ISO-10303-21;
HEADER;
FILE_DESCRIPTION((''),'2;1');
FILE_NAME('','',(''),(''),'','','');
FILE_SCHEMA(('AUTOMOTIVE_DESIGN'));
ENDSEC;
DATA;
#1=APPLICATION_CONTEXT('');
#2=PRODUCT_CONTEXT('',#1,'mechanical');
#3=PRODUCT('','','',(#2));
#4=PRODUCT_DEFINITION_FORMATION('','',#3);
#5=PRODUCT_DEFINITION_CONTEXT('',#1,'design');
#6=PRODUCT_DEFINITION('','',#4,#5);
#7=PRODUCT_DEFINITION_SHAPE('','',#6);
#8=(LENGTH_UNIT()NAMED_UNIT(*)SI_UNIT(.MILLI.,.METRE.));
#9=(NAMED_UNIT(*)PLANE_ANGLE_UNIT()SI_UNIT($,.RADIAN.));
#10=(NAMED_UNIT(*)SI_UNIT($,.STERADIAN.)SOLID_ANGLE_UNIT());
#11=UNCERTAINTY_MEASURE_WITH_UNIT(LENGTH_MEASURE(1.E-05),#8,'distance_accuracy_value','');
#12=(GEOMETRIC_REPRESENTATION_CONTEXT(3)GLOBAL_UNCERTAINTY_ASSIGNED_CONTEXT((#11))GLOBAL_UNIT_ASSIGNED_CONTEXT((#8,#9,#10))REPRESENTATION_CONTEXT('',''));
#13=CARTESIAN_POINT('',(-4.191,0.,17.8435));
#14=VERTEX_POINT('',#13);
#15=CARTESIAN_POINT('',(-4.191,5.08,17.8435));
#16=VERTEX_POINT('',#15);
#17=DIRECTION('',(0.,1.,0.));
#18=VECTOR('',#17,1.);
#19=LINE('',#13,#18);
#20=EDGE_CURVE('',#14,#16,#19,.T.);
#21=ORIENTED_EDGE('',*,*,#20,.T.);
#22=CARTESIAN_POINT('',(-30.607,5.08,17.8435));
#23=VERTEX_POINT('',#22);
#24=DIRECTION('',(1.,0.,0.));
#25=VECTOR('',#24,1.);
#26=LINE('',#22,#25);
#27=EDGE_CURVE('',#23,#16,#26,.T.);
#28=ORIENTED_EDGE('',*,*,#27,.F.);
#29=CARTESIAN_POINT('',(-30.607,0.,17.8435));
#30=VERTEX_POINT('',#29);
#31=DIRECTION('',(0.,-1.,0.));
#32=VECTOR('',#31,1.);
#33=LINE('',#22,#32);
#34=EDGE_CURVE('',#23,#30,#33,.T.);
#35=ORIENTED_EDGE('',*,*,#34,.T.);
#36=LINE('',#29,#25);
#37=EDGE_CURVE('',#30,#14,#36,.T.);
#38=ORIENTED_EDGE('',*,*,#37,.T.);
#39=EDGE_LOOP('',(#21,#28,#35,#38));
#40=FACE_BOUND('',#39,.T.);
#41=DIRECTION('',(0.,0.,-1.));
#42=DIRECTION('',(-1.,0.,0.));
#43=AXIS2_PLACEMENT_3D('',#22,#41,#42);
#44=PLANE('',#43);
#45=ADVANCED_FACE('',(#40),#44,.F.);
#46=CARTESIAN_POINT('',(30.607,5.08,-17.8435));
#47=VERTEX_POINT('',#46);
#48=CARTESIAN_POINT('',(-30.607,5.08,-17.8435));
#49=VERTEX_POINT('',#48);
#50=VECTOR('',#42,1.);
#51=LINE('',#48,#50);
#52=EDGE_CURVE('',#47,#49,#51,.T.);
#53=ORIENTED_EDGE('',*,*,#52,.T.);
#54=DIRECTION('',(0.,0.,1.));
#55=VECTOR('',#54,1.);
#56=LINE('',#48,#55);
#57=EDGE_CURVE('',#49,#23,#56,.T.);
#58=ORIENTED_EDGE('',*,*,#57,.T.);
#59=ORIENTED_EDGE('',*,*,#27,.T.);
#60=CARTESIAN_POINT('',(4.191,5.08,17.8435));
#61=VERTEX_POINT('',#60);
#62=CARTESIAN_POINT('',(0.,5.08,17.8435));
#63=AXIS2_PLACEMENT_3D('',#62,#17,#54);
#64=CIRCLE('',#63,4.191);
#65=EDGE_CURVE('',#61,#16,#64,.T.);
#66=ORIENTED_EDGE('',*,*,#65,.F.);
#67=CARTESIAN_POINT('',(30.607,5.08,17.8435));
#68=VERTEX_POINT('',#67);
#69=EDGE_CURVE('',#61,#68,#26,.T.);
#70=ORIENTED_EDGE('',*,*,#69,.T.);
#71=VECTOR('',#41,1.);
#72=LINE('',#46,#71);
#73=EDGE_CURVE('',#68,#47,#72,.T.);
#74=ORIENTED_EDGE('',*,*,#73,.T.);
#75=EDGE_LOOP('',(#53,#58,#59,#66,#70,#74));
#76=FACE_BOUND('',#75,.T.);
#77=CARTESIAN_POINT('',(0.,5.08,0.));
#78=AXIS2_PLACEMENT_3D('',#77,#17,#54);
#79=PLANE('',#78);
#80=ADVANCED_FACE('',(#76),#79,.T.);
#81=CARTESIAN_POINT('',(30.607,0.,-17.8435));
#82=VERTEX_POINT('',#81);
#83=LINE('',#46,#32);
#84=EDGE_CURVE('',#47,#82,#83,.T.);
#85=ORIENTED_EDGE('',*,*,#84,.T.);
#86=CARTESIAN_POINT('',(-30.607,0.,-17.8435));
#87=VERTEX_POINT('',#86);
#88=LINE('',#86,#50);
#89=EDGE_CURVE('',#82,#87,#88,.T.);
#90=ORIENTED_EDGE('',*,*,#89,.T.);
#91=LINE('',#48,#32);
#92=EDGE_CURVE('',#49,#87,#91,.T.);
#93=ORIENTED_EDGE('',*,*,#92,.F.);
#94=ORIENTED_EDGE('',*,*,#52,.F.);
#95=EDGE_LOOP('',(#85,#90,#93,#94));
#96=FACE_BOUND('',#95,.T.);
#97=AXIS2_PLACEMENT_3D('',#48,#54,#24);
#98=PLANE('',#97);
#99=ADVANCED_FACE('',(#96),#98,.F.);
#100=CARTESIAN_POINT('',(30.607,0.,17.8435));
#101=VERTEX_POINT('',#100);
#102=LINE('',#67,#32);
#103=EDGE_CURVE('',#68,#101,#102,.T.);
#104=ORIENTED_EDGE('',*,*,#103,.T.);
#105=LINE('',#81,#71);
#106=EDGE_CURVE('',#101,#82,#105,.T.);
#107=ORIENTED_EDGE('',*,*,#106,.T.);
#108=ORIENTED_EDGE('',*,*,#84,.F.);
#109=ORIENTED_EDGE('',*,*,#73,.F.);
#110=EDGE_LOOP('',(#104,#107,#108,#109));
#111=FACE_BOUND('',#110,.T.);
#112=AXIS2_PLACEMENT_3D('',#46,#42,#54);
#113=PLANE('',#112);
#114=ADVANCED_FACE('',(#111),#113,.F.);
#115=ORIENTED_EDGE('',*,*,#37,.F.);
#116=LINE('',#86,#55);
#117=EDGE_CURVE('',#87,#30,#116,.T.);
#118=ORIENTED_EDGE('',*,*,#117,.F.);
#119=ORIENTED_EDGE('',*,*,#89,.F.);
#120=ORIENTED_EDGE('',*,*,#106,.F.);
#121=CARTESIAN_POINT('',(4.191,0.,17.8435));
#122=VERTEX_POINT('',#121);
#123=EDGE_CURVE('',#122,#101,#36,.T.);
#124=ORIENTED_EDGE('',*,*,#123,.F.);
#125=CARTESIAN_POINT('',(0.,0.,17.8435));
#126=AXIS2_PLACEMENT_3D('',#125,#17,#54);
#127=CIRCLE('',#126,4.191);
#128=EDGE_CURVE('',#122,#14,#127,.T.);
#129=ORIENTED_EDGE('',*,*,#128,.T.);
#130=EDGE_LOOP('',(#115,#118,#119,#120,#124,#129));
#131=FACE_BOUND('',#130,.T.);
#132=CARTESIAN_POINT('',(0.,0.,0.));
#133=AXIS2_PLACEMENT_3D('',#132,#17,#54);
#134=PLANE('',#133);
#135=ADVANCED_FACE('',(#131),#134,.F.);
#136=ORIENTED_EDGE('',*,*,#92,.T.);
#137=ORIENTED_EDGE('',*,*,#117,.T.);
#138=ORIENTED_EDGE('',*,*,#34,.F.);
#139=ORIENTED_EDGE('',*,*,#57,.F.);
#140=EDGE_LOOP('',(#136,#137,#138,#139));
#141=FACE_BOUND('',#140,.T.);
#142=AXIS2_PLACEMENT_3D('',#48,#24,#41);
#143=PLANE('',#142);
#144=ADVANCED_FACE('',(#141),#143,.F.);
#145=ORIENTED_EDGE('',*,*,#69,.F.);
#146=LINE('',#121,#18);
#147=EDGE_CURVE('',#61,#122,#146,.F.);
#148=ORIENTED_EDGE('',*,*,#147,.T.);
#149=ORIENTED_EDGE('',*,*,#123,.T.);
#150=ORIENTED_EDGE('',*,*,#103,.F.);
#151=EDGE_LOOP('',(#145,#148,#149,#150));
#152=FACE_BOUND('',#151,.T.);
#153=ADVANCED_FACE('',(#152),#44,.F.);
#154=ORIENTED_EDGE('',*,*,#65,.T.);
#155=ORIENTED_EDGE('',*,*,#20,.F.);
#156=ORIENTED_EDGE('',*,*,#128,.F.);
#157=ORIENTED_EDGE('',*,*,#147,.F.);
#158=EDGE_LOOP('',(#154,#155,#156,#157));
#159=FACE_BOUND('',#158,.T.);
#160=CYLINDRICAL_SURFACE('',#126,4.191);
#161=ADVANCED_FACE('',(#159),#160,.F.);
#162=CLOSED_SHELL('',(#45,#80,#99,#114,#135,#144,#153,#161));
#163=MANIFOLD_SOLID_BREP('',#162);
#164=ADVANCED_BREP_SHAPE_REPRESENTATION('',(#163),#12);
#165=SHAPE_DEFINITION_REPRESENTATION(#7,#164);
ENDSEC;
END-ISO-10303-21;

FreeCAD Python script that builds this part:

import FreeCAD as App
import Part
import Sketcher
Q = App.Units.Quantity

doc = App.newDocument("Part")
body = doc.addObject("PartDesign::Body", "Body")

# Sketch on XZ plane
sketch1 = body.newObject("Sketcher::SketchObject", "Sketch")
sketch1.AttachmentSupport = (doc.getObject("XZ_Plane"), [""])
sketch1.MapMode = "FlatFace"
sketch1.addGeometry([
    Part.LineSegment(App.Vector(-30.607, -17.8435, 0), App.Vector(-30.607, 17.8435, 0)),
    Part.LineSegment(App.Vector(-30.607, 17.8435, 0), App.Vector(30.607, 17.8435, 0)),
    Part.LineSegment(App.Vector(30.607, 17.8435, 0), App.Vector(30.607, -17.8435, 0)),
    Part.LineSegment(App.Vector(30.607, -17.8435, 0), App.Vector(-30.607, -17.8435, 0)),
], False)
sketch1.addConstraint([
    Sketcher.Constraint("Coincident", 0, 2, 1, 1),
    Sketcher.Constraint("Coincident", 1, 2, 2, 1),
    Sketcher.Constraint("Coincident", 2, 2, 3, 1),
    Sketcher.Constraint("Coincident", 3, 2, 0, 1),
    Sketcher.Constraint("Vertical", 0),
    Sketcher.Constraint("Horizontal", 1),
    Sketcher.Constraint("Vertical", 2),
    Sketcher.Constraint("Horizontal", 3),
    Sketcher.Constraint("Symmetric", 0, 2, 2, 2, -1, 1),
    Sketcher.Constraint("DistanceX", 1, 1, 1, 2, Q("2.41 in")),
    Sketcher.Constraint("DistanceY", 0, 1, 0, 2, Q("1.405 in")),
])
pad1 = body.newObject("PartDesign::Pad", "Pad")
pad1.Profile = sketch1
pad1.Length = Q("0.2 in")
pad1.Reversed = True

# Sketch on XZ plane
sketch2 = body.newObject("Sketcher::SketchObject", "Sketch001")
sketch2.AttachmentSupport = (doc.getObject("XZ_Plane"), [""])
sketch2.MapMode = "FlatFace"
sketch2.AttachmentOffset = App.Placement(App.Vector(0, 0, -0.2 * 25.4), App.Rotation())
sketch2.addGeometry(Part.Circle(App.Vector(0, 17.8435, 0), App.Vector(0, 0, 1), 4.191), False)
sketch2.addConstraint([
    Sketcher.Constraint("PointOnObject", 0, 3, -2),
    Sketcher.Constraint("Diameter", 0, Q("0.33 in")),
    Sketcher.Constraint("DistanceY", -1, 1, 0, 3, Q("0.7025 in")),
])
pocket1 = body.newObject("PartDesign::Pocket", "Pocket")
pocket1.Profile = sketch2
pocket1.Type = "ThroughAll"
pocket1.Reversed = True

doc.recompute()
